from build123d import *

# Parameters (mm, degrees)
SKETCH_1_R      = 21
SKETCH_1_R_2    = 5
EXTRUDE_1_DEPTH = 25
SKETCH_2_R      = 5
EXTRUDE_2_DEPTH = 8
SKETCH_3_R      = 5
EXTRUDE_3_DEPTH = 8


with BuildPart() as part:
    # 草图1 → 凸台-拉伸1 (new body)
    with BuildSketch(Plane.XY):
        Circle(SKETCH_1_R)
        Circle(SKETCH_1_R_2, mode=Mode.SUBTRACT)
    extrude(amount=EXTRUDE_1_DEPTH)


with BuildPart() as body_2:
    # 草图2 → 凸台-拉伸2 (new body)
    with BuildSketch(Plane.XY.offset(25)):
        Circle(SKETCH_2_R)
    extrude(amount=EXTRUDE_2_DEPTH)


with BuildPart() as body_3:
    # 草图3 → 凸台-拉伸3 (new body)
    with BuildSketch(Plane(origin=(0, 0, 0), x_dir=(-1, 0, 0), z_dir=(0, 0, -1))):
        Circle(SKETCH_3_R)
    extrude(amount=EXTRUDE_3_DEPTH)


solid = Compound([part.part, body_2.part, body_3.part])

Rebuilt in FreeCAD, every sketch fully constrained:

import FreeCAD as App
import Part
import Sketcher
Q = App.Units.Quantity

doc = App.newDocument("Part")
body = doc.addObject("PartDesign::Body", "Body")

# Sketch on XY plane
sketch1 = doc.addObject("Sketcher::SketchObject", "Sketch")
body.addObject(sketch1)
sketch1.AttachmentSupport = (doc.XY_Plane, [""])
sketch1.MapMode = "FlatFace"
sketch1.addGeometry([
    Part.Circle(App.Vector(0, 0, 0), App.Vector(0, 0, 1), 21),
    Part.Circle(App.Vector(0, 0, 0), App.Vector(0, 0, 1), 5),
], False)
sketch1.addConstraint([
    Sketcher.Constraint("Coincident", 0, 3, -1, 1),
    Sketcher.Constraint("Coincident", 1, 3, -1, 1),
    Sketcher.Constraint("Diameter", 0, Q("42 mm")),
    Sketcher.Constraint("Diameter", 1, Q("10 mm")),
])
pad1 = doc.addObject("PartDesign::Pad", "Pad")
body.addObject(pad1)
pad1.Profile = sketch1
pad1.Length = 25
body2 = doc.addObject("PartDesign::Body", "Body001")

# Sketch on XY plane
sketch2 = doc.addObject("Sketcher::SketchObject", "Sketch001")
body2.addObject(sketch2)
sketch2.AttachmentSupport = (doc.getObject("XY_Plane001"), [""])
sketch2.MapMode = "FlatFace"
sketch2.AttachmentOffset = App.Placement(App.Vector(0, 0, 25), App.Rotation())
sketch2.addGeometry(Part.Circle(App.Vector(0, 0, 0), App.Vector(0, 0, 1), 5), False)
sketch2.addConstraint([
    Sketcher.Constraint("Coincident", 0, 3, -1, 1),
    Sketcher.Constraint("Diameter", 0, Q("10 mm")),
])
pad2 = doc.addObject("PartDesign::Pad", "Pad001")
body2.addObject(pad2)
pad2.Profile = sketch2
pad2.Length = 8
body3 = doc.addObject("PartDesign::Body", "Body002")

# Sketch on XY plane
sketch3 = doc.addObject("Sketcher::SketchObject", "Sketch002")
body3.addObject(sketch3)
sketch3.AttachmentSupport = (doc.getObject("XY_Plane002"), [""])
sketch3.MapMode = "FlatFace"
sketch3.addGeometry(Part.Circle(App.Vector(0, 0, 0), App.Vector(0, 0, 1), 5), False)
sketch3.addConstraint([
    Sketcher.Constraint("Coincident", 0, 3, -1, 1),
    Sketcher.Constraint("Diameter", 0, Q("10 mm")),
])
pad3 = doc.addObject("PartDesign::Pad", "Pad002")
body3.addObject(pad3)
pad3.Profile = sketch3
pad3.Length = 8
pad3.Reversed = True

doc.recompute()
